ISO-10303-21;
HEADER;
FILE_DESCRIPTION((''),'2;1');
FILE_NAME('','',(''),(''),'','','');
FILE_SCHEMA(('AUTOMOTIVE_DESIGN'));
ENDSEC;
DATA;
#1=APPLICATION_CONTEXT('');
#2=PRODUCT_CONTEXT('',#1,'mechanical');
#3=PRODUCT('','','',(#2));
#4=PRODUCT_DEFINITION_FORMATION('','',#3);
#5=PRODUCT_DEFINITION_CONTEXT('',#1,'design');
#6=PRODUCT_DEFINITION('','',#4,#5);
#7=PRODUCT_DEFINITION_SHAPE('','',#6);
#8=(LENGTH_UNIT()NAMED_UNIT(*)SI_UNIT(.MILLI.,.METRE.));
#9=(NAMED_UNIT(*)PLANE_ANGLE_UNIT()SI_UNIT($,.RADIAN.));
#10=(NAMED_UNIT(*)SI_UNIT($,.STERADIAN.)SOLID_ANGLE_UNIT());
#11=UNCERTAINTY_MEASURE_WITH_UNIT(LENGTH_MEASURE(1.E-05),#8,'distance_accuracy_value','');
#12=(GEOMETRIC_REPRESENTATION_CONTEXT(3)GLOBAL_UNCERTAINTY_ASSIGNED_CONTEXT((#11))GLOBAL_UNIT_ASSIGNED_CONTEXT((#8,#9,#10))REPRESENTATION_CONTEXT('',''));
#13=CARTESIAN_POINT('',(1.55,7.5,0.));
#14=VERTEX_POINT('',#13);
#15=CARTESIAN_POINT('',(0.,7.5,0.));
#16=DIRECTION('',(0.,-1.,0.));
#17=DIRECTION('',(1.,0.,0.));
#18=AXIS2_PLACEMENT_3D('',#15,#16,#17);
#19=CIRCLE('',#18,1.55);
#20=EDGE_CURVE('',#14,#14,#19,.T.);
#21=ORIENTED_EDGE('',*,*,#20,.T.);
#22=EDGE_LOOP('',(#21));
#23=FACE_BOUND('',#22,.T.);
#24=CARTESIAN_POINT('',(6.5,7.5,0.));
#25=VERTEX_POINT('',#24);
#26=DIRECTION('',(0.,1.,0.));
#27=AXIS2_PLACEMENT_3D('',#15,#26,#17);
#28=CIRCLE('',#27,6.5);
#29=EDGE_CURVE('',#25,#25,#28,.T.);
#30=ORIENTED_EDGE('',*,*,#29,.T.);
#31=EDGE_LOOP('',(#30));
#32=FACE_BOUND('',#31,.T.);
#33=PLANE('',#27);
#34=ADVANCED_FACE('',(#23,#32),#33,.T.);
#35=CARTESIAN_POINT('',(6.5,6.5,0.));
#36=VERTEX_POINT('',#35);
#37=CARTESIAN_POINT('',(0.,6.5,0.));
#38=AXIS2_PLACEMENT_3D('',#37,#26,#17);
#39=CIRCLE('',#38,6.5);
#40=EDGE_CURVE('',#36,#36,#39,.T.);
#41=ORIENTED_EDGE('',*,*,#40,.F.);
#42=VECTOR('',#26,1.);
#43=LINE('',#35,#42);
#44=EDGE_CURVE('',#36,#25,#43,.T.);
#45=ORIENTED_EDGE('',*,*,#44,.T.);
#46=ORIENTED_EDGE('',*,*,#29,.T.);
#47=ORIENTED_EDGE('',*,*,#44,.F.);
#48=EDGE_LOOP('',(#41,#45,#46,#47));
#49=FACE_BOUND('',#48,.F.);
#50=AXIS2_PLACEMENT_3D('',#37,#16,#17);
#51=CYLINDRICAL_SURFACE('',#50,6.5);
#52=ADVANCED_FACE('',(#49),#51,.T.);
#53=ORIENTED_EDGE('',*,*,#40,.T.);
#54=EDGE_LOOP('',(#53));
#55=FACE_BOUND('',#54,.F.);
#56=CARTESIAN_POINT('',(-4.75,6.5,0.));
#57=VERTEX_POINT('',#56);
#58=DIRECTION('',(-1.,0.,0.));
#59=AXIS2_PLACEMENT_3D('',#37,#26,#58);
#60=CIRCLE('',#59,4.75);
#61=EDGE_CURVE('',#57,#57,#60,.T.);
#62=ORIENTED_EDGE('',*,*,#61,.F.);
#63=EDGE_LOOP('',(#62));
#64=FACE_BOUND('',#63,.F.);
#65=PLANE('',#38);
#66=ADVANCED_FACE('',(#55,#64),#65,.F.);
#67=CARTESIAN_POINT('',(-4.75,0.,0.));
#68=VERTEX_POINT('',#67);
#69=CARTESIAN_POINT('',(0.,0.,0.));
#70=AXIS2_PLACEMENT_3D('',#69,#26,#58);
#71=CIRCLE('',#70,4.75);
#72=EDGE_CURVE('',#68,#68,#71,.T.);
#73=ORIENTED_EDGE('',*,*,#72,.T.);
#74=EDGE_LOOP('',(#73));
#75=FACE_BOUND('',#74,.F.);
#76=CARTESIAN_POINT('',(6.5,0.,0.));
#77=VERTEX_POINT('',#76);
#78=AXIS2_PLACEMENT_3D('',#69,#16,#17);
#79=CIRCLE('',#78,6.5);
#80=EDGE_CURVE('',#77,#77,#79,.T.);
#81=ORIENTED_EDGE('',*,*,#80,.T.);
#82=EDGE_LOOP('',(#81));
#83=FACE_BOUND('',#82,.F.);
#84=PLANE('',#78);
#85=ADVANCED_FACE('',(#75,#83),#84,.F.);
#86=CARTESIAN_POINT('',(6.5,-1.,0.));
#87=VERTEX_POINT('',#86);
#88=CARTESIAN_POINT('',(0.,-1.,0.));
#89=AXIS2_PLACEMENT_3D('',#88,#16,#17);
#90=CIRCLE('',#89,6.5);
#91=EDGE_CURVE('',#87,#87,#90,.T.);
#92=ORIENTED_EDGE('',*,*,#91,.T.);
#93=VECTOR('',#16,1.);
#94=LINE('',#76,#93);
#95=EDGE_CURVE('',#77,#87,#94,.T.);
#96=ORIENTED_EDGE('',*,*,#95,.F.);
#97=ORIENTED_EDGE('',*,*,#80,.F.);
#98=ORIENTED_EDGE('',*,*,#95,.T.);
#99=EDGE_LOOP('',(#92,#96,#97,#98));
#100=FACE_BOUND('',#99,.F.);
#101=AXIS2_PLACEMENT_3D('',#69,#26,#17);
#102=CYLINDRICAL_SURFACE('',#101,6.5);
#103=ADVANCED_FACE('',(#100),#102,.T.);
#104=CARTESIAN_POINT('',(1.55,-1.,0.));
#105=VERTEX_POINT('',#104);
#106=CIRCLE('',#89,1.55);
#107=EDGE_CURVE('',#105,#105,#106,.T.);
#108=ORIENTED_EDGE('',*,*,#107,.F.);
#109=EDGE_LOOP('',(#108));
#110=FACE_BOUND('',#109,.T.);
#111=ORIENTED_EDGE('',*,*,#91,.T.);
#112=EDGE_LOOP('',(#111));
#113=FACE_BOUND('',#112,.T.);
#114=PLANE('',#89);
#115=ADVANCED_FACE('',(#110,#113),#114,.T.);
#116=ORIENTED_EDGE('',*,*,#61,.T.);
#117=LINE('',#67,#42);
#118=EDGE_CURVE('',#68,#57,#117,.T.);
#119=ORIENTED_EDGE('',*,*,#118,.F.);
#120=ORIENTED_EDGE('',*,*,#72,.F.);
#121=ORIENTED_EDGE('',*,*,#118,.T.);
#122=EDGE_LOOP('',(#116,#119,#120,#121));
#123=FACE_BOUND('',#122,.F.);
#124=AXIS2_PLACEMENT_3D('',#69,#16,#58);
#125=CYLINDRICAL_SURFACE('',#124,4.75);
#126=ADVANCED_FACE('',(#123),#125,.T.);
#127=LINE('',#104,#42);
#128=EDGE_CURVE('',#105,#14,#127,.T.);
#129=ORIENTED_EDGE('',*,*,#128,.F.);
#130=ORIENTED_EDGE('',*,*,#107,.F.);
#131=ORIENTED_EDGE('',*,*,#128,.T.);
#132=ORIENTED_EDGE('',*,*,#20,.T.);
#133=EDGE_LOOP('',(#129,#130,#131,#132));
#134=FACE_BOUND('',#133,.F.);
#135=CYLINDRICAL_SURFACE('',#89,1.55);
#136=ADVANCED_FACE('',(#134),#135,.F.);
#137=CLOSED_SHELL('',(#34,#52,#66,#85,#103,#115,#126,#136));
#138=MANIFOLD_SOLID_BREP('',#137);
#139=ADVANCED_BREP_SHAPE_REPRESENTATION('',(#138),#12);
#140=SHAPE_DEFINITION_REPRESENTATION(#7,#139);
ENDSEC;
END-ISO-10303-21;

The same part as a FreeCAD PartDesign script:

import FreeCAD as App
import Part
import Sketcher
Q = App.Units.Quantity

doc = App.newDocument("Part")
body = doc.addObject("PartDesign::Body", "Body")

# Sketch on XZ plane
sketch1 = doc.addObject("Sketcher::SketchObject", "Sketch")
body.addObject(sketch1)
sketch1.AttachmentSupport = (doc.XZ_Plane, [""])
sketch1.MapMode = "FlatFace"
sketch1.addGeometry(Part.Circle(App.Vector(0, 0, 0), App.Vector(0, 0, 1), 4.8), False)
sketch1.addConstraint([
    Sketcher.Constraint("Coincident", 0, 3, -1, 1),
    Sketcher.Constraint("Diameter", 0, Q("9.5 mm")),
])
pad1 = doc.addObject("PartDesign::Pad", "Pad")
body.addObject(pad1)
pad1.Profile = sketch1
pad1.Length = 6.5
pad1.Reversed = True

# Sketch on XZ plane
sketch2 = doc.addObject("Sketcher::SketchObject", "Sketch001")
body.addObject(sketch2)
sketch2.AttachmentSupport = (doc.XZ_Plane, [""])
sketch2.MapMode = "FlatFace"
sketch2.AttachmentOffset = App.Placement(App.Vector(0, 0, -6.5), App.Rotation())
sketch2.addGeometry(Part.Circle(App.Vector(0, 0, 0), App.Vector(0, 0, 1), 6), False)
sketch2.addConstraint([
    Sketcher.Constraint("Coincident", 0, 3, -1, 1),
    Sketcher.Constraint("Diameter", 0, Q("13 mm")),
])
pad2 = doc.addObject("PartDesign::Pad", "Pad001")
body.addObject(pad2)
pad2.Profile = sketch2
pad2.Length = 1
pad2.Reversed = True

# Sketch on XZ plane
sketch3 = doc.addObject("Sketcher::SketchObject", "Sketch002")
body.addObject(sketch3)
sketch3.AttachmentSupport = (doc.XZ_Plane, [""])
sketch3.MapMode = "FlatFace"
sketch3.addGeometry(Part.Circle(App.Vector(0, 0, 0), App.Vector(0, 0, 1), 6), False)
sketch3.addConstraint([
    Sketcher.Constraint("Coincident", 0, 3, -1, 1),
    Sketcher.Constraint("Diameter", 0, Q("13 mm")),
])
pad3 = doc.addObject("PartDesign::Pad", "Pad002")
body.addObject(pad3)
pad3.Profile = sketch3
pad3.Length = 1

# Sketch on XZ plane
sketch4 = doc.addObject("Sketcher::SketchObject", "Sketch003")
body.addObject(sketch4)
sketch4.AttachmentSupport = (doc.XZ_Plane, [""])
sketch4.MapMode = "FlatFace"
sketch4.AttachmentOffset = App.Placement(App.Vector(0, 0, 1), App.Rotation())
sketch4.addGeometry(Part.Circle(App.Vector(0, 0, 0), App.Vector(0, 0, 1), 1.6), False)
sketch4.addConstraint([
    Sketcher.Constraint("Coincident", 0, 3, -1, 1),
    Sketcher.Constraint("Diameter", 0, Q("3.1 mm")),
])
pocket1 = doc.addObject("PartDesign::Pocket", "Pocket")
body.addObject(pocket1)
pocket1.Profile = sketch4
pocket1.Type = "ThroughAll"

doc.recompute()
